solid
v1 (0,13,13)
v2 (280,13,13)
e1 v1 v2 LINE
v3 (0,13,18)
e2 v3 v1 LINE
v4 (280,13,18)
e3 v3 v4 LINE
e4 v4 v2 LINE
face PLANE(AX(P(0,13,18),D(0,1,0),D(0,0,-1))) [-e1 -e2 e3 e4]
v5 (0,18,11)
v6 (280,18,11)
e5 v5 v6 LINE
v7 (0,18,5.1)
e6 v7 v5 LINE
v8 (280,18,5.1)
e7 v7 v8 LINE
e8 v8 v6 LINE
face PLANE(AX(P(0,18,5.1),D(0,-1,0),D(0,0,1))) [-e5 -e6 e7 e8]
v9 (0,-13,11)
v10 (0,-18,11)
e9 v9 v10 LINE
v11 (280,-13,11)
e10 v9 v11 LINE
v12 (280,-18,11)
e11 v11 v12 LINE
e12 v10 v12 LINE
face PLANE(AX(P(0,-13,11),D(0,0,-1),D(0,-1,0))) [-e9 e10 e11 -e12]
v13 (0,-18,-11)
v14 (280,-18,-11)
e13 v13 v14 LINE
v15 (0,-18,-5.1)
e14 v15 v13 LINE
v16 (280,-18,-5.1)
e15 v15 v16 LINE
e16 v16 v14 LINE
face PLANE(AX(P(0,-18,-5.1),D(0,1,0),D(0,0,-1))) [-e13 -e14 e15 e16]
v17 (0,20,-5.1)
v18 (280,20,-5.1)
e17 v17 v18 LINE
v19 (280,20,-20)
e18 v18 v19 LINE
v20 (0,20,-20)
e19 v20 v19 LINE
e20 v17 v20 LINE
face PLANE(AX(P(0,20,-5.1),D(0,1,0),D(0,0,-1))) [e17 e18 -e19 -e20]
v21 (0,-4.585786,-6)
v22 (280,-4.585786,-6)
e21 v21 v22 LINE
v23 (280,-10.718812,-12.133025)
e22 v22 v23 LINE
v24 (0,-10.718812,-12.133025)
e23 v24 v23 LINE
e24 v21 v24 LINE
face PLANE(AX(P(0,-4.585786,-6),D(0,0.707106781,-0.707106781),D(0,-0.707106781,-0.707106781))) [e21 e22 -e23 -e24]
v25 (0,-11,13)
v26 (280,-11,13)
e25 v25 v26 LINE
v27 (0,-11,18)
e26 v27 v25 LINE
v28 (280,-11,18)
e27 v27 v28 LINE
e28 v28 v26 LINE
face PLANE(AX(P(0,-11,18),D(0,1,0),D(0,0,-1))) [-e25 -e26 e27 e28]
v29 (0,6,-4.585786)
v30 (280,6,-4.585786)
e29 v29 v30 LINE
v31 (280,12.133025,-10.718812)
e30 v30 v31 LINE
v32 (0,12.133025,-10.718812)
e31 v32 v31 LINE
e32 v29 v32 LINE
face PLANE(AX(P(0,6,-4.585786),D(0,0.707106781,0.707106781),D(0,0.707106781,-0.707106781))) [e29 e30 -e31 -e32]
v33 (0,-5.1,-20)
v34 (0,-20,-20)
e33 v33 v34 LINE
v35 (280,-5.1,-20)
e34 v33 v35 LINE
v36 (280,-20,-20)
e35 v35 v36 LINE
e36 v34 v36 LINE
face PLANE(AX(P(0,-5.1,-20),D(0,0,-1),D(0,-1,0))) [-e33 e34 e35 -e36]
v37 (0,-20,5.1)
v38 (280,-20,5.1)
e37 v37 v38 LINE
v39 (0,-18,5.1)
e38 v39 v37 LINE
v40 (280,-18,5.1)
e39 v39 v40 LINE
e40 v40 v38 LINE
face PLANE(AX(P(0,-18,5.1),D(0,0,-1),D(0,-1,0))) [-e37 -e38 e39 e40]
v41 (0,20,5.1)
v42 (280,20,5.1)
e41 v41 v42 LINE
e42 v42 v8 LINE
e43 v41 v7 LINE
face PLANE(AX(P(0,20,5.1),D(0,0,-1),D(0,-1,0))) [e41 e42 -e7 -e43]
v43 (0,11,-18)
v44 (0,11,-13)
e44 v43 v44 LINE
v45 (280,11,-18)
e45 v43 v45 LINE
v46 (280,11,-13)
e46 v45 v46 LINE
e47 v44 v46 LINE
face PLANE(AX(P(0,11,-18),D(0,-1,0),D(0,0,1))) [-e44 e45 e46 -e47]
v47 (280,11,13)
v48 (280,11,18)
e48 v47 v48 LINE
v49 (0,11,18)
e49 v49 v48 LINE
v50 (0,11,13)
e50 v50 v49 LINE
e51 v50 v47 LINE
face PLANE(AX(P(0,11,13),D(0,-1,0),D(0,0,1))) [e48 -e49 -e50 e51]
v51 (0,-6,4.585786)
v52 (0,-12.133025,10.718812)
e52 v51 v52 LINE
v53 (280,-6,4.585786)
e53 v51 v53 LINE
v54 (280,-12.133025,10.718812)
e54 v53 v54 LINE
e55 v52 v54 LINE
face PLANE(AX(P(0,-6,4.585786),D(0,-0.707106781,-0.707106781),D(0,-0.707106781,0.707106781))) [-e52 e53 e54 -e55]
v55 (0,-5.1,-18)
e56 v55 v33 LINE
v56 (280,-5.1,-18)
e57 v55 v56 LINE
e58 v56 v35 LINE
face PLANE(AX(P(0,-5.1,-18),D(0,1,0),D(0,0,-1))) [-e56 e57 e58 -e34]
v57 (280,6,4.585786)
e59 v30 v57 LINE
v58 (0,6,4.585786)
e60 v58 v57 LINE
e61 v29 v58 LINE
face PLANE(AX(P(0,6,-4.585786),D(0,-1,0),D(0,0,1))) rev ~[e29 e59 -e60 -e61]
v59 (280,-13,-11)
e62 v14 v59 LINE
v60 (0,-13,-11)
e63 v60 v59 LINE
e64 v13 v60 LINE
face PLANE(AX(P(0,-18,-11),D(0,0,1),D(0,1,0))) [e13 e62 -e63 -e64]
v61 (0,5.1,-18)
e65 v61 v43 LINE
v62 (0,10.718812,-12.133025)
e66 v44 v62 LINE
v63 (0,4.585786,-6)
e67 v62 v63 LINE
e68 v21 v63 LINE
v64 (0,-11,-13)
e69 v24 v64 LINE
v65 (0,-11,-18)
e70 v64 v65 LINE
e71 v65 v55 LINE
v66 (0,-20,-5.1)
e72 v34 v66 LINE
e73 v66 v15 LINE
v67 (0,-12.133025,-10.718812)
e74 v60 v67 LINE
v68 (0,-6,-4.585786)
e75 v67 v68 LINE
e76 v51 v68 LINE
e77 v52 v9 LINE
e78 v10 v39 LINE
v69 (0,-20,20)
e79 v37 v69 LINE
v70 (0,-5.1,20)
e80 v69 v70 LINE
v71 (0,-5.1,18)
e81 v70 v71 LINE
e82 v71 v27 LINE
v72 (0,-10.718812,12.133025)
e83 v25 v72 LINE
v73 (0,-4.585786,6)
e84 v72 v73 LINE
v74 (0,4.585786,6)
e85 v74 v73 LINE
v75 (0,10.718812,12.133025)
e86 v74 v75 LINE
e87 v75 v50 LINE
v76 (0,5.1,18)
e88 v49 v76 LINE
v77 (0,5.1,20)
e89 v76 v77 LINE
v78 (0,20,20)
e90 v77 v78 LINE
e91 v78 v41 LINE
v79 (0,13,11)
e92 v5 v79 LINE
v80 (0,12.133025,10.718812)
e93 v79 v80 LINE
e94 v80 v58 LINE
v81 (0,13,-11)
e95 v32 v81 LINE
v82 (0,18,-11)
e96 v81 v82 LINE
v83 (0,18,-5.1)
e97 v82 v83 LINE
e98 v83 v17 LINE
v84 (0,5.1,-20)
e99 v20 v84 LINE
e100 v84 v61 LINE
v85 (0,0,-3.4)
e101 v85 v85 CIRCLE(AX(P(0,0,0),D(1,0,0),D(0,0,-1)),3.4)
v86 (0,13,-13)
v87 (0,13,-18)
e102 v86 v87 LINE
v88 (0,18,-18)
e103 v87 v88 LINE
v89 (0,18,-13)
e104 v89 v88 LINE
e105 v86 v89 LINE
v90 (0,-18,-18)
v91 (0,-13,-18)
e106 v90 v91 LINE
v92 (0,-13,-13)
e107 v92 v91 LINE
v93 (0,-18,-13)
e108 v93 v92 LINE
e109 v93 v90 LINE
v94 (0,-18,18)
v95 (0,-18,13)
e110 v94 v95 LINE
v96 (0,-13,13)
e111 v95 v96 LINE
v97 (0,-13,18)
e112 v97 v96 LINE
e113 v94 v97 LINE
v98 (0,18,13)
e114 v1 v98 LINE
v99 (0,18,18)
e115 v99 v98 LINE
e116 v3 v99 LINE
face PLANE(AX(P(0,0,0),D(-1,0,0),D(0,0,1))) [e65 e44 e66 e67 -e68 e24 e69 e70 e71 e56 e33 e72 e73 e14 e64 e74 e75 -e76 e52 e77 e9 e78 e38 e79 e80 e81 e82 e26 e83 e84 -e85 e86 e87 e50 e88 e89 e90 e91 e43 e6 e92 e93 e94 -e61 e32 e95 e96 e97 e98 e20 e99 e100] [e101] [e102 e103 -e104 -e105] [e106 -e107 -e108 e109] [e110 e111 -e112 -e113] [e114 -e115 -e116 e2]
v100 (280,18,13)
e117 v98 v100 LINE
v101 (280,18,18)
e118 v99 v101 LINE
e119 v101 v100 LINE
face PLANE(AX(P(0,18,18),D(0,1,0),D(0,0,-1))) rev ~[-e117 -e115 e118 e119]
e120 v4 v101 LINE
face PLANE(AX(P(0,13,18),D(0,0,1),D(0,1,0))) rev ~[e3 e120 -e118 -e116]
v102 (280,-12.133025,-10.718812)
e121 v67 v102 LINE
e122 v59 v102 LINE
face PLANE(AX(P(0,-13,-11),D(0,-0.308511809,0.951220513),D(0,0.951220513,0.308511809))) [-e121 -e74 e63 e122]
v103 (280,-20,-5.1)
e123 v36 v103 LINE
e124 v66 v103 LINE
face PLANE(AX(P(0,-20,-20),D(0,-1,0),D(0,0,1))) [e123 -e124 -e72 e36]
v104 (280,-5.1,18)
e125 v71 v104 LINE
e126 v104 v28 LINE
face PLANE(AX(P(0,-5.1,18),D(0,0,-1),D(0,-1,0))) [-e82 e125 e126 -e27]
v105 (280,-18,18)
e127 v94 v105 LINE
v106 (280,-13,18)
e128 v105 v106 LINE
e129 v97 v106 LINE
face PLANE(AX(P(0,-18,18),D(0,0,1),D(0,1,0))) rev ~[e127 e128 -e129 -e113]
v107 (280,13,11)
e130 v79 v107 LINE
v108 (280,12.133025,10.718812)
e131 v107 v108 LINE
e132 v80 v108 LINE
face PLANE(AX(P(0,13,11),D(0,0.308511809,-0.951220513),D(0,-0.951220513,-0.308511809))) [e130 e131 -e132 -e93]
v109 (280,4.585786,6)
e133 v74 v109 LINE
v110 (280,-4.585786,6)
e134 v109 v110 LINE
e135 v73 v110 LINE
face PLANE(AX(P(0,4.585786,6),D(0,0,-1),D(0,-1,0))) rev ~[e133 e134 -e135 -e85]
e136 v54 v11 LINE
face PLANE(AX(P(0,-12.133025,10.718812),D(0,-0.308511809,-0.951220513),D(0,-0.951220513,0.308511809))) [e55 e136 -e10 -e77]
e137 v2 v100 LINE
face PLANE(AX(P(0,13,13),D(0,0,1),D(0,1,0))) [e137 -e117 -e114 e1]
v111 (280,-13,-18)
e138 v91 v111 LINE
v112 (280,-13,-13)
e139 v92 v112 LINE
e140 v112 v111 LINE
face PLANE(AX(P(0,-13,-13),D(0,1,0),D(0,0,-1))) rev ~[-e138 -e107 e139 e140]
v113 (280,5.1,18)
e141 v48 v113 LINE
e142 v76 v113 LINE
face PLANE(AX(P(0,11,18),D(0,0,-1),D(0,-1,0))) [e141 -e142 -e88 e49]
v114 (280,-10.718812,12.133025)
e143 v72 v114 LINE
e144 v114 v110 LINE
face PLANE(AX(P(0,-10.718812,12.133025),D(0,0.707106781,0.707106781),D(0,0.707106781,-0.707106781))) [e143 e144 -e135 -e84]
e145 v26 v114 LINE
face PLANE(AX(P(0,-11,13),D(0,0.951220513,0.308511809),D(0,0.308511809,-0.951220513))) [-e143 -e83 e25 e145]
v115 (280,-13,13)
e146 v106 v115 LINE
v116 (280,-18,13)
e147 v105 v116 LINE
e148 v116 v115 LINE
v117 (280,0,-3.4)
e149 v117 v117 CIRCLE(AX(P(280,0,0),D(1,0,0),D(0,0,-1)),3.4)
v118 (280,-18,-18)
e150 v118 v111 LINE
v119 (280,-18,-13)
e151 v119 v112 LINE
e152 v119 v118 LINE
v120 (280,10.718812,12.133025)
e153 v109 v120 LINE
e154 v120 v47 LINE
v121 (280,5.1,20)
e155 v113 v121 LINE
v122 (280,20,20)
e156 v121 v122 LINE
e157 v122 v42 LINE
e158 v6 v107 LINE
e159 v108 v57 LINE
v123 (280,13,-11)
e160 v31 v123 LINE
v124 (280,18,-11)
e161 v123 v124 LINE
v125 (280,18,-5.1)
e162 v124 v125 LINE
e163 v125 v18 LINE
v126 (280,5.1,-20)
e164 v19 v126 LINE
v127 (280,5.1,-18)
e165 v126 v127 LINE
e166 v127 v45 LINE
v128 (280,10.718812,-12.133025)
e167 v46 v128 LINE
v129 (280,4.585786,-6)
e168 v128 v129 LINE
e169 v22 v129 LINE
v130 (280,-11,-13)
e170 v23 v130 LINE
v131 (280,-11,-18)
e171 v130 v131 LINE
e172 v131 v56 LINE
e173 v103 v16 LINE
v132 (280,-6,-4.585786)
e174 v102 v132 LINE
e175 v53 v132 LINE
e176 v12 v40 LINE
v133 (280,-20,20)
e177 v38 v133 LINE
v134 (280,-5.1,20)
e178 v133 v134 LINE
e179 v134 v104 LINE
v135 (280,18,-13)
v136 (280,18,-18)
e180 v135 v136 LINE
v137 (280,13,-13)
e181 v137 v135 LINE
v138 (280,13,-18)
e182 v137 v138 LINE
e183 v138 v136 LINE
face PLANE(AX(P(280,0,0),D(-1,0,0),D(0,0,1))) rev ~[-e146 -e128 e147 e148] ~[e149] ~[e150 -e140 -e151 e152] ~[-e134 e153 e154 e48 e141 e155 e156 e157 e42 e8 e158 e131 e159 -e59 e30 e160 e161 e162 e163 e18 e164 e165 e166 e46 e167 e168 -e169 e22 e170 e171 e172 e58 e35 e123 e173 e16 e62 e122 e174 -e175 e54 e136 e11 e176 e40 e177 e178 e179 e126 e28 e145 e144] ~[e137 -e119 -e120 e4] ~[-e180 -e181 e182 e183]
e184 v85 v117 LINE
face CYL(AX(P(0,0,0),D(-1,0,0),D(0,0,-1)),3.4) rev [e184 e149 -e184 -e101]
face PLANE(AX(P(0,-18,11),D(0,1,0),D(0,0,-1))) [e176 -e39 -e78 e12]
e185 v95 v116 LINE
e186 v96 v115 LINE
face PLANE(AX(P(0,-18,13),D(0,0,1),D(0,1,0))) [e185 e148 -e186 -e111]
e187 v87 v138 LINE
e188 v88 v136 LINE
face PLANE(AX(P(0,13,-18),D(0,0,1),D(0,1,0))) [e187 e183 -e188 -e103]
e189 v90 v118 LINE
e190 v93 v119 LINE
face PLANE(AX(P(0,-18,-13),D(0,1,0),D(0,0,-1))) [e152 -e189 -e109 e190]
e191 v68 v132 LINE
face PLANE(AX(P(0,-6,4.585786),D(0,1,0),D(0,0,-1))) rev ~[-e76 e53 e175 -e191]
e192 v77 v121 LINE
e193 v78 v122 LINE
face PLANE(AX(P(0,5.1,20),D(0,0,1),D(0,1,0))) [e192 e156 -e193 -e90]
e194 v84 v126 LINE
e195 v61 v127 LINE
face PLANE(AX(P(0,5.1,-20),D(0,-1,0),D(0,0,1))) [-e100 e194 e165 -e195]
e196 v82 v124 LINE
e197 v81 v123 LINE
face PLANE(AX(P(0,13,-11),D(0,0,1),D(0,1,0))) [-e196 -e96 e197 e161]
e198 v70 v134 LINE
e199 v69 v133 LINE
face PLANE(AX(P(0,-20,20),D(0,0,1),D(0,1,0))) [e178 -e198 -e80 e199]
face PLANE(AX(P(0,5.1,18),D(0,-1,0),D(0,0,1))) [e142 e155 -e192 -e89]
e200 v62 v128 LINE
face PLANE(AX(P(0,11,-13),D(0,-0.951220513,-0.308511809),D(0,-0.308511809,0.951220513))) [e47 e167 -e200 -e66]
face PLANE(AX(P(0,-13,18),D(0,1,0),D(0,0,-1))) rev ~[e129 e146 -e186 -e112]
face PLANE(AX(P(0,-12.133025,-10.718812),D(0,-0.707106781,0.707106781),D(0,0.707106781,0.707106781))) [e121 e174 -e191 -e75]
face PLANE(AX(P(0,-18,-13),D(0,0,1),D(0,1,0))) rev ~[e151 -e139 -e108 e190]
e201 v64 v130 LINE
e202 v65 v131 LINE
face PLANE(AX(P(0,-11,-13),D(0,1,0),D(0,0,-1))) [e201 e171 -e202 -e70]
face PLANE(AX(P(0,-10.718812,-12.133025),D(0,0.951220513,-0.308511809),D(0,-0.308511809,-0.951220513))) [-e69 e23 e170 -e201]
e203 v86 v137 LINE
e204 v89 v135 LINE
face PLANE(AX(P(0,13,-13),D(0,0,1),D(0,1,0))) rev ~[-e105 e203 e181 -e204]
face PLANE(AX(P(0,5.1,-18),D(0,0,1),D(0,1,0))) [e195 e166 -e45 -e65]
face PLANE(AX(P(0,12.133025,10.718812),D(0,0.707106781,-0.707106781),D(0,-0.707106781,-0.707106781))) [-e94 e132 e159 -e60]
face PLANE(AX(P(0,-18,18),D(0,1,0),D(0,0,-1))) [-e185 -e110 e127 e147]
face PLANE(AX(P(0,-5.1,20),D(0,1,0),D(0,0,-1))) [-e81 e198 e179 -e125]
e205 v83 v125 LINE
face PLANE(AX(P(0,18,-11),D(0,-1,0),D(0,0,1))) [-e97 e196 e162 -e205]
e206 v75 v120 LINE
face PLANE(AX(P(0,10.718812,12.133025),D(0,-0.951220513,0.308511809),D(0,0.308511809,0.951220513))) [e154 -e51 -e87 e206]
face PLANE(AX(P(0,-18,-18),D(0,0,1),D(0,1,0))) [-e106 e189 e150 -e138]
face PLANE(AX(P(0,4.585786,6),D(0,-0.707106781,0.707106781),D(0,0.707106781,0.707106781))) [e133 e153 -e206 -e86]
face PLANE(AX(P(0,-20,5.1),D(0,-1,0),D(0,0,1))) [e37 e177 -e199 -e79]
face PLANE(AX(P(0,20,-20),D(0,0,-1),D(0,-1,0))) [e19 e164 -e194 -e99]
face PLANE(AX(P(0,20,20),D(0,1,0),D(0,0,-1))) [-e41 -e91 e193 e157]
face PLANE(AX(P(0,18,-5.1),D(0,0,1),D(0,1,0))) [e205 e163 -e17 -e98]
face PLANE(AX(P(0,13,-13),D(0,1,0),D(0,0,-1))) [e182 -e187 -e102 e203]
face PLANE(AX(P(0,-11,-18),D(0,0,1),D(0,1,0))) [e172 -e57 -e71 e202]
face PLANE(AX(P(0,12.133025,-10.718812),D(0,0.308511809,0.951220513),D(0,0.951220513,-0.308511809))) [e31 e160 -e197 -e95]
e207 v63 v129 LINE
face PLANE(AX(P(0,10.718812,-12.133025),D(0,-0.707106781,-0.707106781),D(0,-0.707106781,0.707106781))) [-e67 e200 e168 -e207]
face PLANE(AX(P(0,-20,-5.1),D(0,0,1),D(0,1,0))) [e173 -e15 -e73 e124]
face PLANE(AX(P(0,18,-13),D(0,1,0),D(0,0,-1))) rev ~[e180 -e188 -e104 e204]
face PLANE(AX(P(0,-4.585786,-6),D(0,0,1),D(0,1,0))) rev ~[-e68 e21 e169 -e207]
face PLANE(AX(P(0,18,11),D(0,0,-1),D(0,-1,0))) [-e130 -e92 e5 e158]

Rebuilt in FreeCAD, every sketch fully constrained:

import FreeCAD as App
import Part
import Sketcher
Q = App.Units.Quantity


def add_polygon(sketch, points):
    """Adds a closed chain of lines whose ends are joined by coincident constraints."""
    first, n = sketch.GeometryCount, len(points)
    for a, b in zip(points, points[1:] + points[:1]):
        sketch.addGeometry(Part.LineSegment(App.Vector(*a, 0), App.Vector(*b, 0)), False)
    for i in range(n):
        sketch.addConstraint(Sketcher.Constraint("Coincident", first + i, 2, first + (i + 1) % n, 1))

doc = App.newDocument("Part")
body = doc.addObject("PartDesign::Body", "Body")

# Sketch on YZ plane
sketch1 = body.newObject("Sketcher::SketchObject", "Sketch")
sketch1.AttachmentSupport = (doc.getObject("YZ_Plane"), [""])
sketch1.MapMode = "FlatFace"
add_polygon(sketch1, [(6, -4.585786), (6, 4.585786), (12.133025, 10.718812), (13, 11), (18, 11), (18, 5.1), (20, 5.1), (20, 20), (5.1, 20), (5.1, 18), (11, 18), (11, 13), (10.718812, 12.133025), (4.585786, 6), (-4.585786, 6), (-10.718812, 12.133025), (-11, 13), (-11, 18), (-5.1, 18), (-5.1, 20), (-20, 20), (-20, 5.1), (-18, 5.1), (-18, 11), (-13, 11), (-12.133025, 10.718812), (-6, 4.585786), (-6, -4.585786), (-12.133025, -10.718812), (-13, -11), (-18, -11), (-18, -5.1), (-20, -5.1), (-20, -20), (-5.1, -20), (-5.1, -18), (-11, -18), (-11, -13), (-10.718812, -12.133025), (-4.585786, -6), (4.585786, -6), (10.718812, -12.133025), (11, -13), (11, -18), (5.1, -18), (5.1, -20), (20, -20), (20, -5.1), (18, -5.1), (18, -11), (13, -11), (12.133025, -10.718812)])  # lines 0-51
add_polygon(sketch1, [(-18, -13), (-13, -13), (-13, -18), (-18, -18)])  # lines 52-55
add_polygon(sketch1, [(-18, 18), (-13, 18), (-13, 13), (-18, 13)])  # lines 56-59
add_polygon(sketch1, [(13, -13), (18, -13), (18, -18), (13, -18)])  # lines 60-63
sketch1.addGeometry(Part.Circle(App.Vector(0, 0, 0), App.Vector(0, 0, 1), 3.4), False)  # 64
add_polygon(sketch1, [(13, 18), (18, 18), (18, 13), (13, 13)])  # lines 65-68
sketch1.addConstraint([
    Sketcher.Constraint("Vertical", 0),
    Sketcher.Constraint("Horizontal", 3),
    Sketcher.Constraint("Vertical", 4),
    Sketcher.Constraint("Horizontal", 5),
    Sketcher.Constraint("Vertical", 6),
    Sketcher.Constraint("Horizontal", 7),
    Sketcher.Constraint("Vertical", 8),
    Sketcher.Constraint("Horizontal", 9),
    Sketcher.Constraint("Vertical", 10),
    Sketcher.Constraint("Horizontal", 13),
    Sketcher.Constraint("Vertical", 16),
    Sketcher.Constraint("Horizontal", 17),
    Sketcher.Constraint("Vertical", 18),
    Sketcher.Constraint("Horizontal", 19),
    Sketcher.Constraint("Vertical", 20),
    Sketcher.Constraint("Horizontal", 21),
    Sketcher.Constraint("Vertical", 22),
    Sketcher.Constraint("Horizontal", 23),
    Sketcher.Constraint("Vertical", 26),
    Sketcher.Constraint("Horizontal", 29),
    Sketcher.Constraint("Vertical", 30),
    Sketcher.Constraint("Horizontal", 31),
    Sketcher.Constraint("Vertical", 32),
    Sketcher.Constraint("Horizontal", 33),
    Sketcher.Constraint("Vertical", 34),
    Sketcher.Constraint("Horizontal", 35),
    Sketcher.Constraint("Vertical", 36),
    Sketcher.Constraint("Horizontal", 39),
    Sketcher.Constraint("Vertical", 42),
    Sketcher.Constraint("Horizontal", 43),
    Sketcher.Constraint("Vertical", 44),
    Sketcher.Constraint("Horizontal", 45),
    Sketcher.Constraint("Vertical", 46),
    Sketcher.Constraint("Horizontal", 47),
    Sketcher.Constraint("Vertical", 48),
    Sketcher.Constraint("Horizontal", 49),
    Sketcher.Constraint("Horizontal", 52),
    Sketcher.Constraint("Vertical", 53),
    Sketcher.Constraint("Horizontal", 54),
    Sketcher.Constraint("Vertical", 55),
    Sketcher.Constraint("Horizontal", 56),
    Sketcher.Constraint("Vertical", 57),
    Sketcher.Constraint("Horizontal", 58),
    Sketcher.Constraint("Vertical", 59),
    Sketcher.Constraint("Horizontal", 60),
    Sketcher.Constraint("Vertical", 61),
    Sketcher.Constraint("Horizontal", 62),
    Sketcher.Constraint("Vertical", 63),
    Sketcher.Constraint("Horizontal", 65),
    Sketcher.Constraint("Vertical", 66),
    Sketcher.Constraint("Horizontal", 67),
    Sketcher.Constraint("Vertical", 68),
    Sketcher.Constraint("Coincident", 64, 3, -1, 1),
    Sketcher.Constraint("Symmetric", 0, 2, 26, 2, -1, 1),
    Sketcher.Constraint("Symmetric", 1, 2, 27, 2, -1, 1),
    Sketcher.Constraint("Symmetric", 2, 2, 28, 2, -1, 1),
    Sketcher.Constraint("Symmetric", 4, 2, 30, 2, -1, 1),
    Sketcher.Constraint("Symmetric", 6, 2, 32, 2, -1, 1),
    Sketcher.Constraint("Symmetric", 8, 2, 34, 2, -1, 1),
    Sketcher.Constraint("Symmetric", 10, 2, 36, 2, -1, 1),
    Sketcher.Constraint("Symmetric", 11, 2, 37, 2, -1, 1),
    Sketcher.Constraint("Symmetric", 12, 2, 38, 2, -1, 1),
    Sketcher.Constraint("Symmetric", 14, 2, 40, 2, -1, 1),
    Sketcher.Constraint("Symmetric", 15, 2, 41, 2, -1, 1),
    Sketcher.Constraint("Symmetric", 17, 2, 43, 2, -1, 1),
    Sketcher.Constraint("Symmetric", 19, 2, 45, 2, -1, 1),
    Sketcher.Constraint("Symmetric", 21, 2, 47, 2, -1, 1),
    Sketcher.Constraint("Symmetric", 23, 2, 49, 2, -1, 1),
    Sketcher.Constraint("Symmetric", 24, 2, 50, 2, -1, 1),
    Sketcher.Constraint("Symmetric", 58, 2, 60, 2, -1, 1),
    Sketcher.Constraint("Symmetric", 56, 2, 62, 2, -1, 1),
    Sketcher.Constraint("Symmetric", 54, 2, 65, 2, -1, 1),
    Sketcher.Constraint("Symmetric", 52, 2, 67, 2, -1, 1),
    Sketcher.Constraint("Symmetric", 11, 2, 14, 2, -2),
    Sketcher.Constraint("Symmetric", 10, 2, 15, 2, -2),
    Sketcher.Constraint("Symmetric", 8, 2, 17, 2, -2),
    Sketcher.Constraint("Symmetric", 6, 2, 19, 2, -2),
    Sketcher.Constraint("Symmetric", 4, 2, 21, 2, -2),
    Sketcher.Constraint("Symmetric", 2, 2, 23, 2, -2),
    Sketcher.Constraint("Symmetric", 1, 2, 24, 2, -2),
    Sketcher.Constraint("Symmetric", 55, 2, 60, 2, -2),
    Sketcher.Constraint("Symmetric", 53, 2, 62, 2, -2),
    Sketcher.Constraint("Parallel", 1, 12),
    Sketcher.Constraint("Perpendicular", 12, 14),
    Sketcher.Constraint("Perpendicular", 2, 15),
    Sketcher.Constraint("Parallel", 14, 25),
    Sketcher.Constraint("Perpendicular", 38, 40),
    Sketcher.Constraint("Parallel", 40, 51),
    Sketcher.Constraint("Horizontal", 0, 2, 25, 2),
    Sketcher.Constraint("Horizontal", 41, 2, 52, 2),
    Sketcher.Constraint("Horizontal", 43, 2, 53, 2),
    Sketcher.Constraint("Vertical", 28, 2, 52, 2),
    Sketcher.Constraint("Vertical", 30, 2, 54, 2),
    Sketcher.Constraint("Equal", 39, 0),
    Sketcher.Constraint("Equal", 43, 4),
    Sketcher.Constraint("Equal", 45, 6),
    Sketcher.Constraint("Equal", 47, 8),
    Sketcher.Constraint("Equal", 67, 10),
    Sketcher.Constraint("Equal", 2, 11),
    Sketcher.Constraint("Equal", 1, 12),
    Sketcher.Constraint("Diameter", 64, Q("6.8 mm")),
    Sketcher.Constraint("DistanceX", 3, 1, 3, 2, Q("5 mm")),
    Sketcher.Constraint("DistanceX", 5, 1, 5, 2, Q("2 mm")),
    Sketcher.Constraint("DistanceX", 7, 2, 7, 1, Q("14.9 mm")),
    Sketcher.Constraint("DistanceX", 9, 1, 9, 2, Q("5.9 mm")),
    Sketcher.Constraint("DistanceX", -1, 1, 0, 2, Q("6 mm")),
    Sketcher.Constraint("DistanceX", -1, 1, 2, 2, Q("13 mm")),
    Sketcher.Constraint("DistanceX", 13, 2, 13, 1, Q("9.171573 mm")),
    Sketcher.Constraint("DistanceY", -1, 1, 1, 2, Q("10.718812 mm")),
])
pad1 = body.newObject("PartDesign::Pad", "Pad")
pad1.Profile = sketch1
pad1.Length = 280

doc.recompute()
